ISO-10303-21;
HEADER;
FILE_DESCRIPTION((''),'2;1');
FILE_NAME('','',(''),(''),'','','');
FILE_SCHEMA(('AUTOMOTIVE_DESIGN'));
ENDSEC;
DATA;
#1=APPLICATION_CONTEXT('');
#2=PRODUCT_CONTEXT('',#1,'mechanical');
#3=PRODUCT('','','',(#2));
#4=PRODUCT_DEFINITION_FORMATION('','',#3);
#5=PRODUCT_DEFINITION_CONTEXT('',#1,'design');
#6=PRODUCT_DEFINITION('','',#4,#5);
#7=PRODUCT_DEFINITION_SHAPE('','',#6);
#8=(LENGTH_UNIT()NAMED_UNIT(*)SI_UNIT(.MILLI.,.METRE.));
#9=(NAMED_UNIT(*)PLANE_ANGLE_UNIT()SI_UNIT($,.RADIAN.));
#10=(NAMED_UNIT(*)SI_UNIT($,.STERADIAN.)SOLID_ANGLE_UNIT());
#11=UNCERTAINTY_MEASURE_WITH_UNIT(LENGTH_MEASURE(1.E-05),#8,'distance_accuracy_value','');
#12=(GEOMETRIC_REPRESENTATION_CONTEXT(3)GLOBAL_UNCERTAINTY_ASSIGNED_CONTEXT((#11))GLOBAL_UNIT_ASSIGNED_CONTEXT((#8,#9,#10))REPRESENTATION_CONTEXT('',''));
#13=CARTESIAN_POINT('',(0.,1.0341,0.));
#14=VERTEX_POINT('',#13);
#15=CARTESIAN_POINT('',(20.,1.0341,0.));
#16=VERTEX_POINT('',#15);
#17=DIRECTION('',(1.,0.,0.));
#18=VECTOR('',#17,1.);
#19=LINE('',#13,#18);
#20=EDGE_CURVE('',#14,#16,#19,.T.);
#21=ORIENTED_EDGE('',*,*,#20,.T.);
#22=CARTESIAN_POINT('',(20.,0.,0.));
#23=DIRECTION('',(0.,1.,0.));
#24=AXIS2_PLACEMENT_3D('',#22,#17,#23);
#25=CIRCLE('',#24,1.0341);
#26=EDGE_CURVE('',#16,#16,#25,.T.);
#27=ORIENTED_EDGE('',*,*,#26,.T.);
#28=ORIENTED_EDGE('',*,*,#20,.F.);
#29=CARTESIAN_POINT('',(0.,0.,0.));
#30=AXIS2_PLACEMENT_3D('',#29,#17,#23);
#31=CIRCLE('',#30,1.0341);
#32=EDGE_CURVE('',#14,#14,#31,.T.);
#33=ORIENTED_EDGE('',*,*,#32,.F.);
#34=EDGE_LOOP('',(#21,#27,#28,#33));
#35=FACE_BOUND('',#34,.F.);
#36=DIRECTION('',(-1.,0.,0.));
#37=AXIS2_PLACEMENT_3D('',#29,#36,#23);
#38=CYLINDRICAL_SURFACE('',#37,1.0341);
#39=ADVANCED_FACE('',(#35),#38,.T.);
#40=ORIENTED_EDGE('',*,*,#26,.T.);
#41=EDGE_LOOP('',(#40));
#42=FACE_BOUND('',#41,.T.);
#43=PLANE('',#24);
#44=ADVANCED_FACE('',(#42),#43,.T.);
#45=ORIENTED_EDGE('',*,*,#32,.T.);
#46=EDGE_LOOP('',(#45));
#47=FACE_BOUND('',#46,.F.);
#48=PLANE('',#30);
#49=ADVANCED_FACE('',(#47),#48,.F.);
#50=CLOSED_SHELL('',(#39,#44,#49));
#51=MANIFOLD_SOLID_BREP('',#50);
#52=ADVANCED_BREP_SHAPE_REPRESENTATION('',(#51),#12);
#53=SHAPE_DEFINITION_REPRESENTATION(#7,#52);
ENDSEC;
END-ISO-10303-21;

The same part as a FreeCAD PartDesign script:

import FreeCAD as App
import Part
import Sketcher
from FreeCAD import Vector

doc = App.newDocument("Part")
params = doc.addObject("Spreadsheet::Sheet", "Params")
for row, (alias, value) in enumerate([
    ("pad1_length", "20 mm"),
], start=1):
    params.set(f"A{row}", alias)
    params.set(f"B{row}", "=" + value)
    params.setAlias(f"B{row}", alias)

body = doc.addObject("PartDesign::Body", "Body")

# Sketch on YZ plane
sketch1 = body.newObject("Sketcher::SketchObject", "Sketch")
sketch1.AttachmentSupport = (doc.getObject("YZ_Plane"), [""])
sketch1.MapMode = "FlatFace"
sketch1.addGeometry(Part.Circle(Vector(0, 0, 0), Vector(0, 0, 1), 1.0341), False)
sketch1.addConstraint(Sketcher.Constraint("Coincident", 0, 3, -1, 1))
sketch1.addConstraint(Sketcher.Constraint("Diameter", 0, 2.0682))
pad1 = body.newObject("PartDesign::Pad", "Pad")
pad1.Profile = sketch1
pad1.setExpression("Length", "Params.pad1_length")

doc.recompute()
